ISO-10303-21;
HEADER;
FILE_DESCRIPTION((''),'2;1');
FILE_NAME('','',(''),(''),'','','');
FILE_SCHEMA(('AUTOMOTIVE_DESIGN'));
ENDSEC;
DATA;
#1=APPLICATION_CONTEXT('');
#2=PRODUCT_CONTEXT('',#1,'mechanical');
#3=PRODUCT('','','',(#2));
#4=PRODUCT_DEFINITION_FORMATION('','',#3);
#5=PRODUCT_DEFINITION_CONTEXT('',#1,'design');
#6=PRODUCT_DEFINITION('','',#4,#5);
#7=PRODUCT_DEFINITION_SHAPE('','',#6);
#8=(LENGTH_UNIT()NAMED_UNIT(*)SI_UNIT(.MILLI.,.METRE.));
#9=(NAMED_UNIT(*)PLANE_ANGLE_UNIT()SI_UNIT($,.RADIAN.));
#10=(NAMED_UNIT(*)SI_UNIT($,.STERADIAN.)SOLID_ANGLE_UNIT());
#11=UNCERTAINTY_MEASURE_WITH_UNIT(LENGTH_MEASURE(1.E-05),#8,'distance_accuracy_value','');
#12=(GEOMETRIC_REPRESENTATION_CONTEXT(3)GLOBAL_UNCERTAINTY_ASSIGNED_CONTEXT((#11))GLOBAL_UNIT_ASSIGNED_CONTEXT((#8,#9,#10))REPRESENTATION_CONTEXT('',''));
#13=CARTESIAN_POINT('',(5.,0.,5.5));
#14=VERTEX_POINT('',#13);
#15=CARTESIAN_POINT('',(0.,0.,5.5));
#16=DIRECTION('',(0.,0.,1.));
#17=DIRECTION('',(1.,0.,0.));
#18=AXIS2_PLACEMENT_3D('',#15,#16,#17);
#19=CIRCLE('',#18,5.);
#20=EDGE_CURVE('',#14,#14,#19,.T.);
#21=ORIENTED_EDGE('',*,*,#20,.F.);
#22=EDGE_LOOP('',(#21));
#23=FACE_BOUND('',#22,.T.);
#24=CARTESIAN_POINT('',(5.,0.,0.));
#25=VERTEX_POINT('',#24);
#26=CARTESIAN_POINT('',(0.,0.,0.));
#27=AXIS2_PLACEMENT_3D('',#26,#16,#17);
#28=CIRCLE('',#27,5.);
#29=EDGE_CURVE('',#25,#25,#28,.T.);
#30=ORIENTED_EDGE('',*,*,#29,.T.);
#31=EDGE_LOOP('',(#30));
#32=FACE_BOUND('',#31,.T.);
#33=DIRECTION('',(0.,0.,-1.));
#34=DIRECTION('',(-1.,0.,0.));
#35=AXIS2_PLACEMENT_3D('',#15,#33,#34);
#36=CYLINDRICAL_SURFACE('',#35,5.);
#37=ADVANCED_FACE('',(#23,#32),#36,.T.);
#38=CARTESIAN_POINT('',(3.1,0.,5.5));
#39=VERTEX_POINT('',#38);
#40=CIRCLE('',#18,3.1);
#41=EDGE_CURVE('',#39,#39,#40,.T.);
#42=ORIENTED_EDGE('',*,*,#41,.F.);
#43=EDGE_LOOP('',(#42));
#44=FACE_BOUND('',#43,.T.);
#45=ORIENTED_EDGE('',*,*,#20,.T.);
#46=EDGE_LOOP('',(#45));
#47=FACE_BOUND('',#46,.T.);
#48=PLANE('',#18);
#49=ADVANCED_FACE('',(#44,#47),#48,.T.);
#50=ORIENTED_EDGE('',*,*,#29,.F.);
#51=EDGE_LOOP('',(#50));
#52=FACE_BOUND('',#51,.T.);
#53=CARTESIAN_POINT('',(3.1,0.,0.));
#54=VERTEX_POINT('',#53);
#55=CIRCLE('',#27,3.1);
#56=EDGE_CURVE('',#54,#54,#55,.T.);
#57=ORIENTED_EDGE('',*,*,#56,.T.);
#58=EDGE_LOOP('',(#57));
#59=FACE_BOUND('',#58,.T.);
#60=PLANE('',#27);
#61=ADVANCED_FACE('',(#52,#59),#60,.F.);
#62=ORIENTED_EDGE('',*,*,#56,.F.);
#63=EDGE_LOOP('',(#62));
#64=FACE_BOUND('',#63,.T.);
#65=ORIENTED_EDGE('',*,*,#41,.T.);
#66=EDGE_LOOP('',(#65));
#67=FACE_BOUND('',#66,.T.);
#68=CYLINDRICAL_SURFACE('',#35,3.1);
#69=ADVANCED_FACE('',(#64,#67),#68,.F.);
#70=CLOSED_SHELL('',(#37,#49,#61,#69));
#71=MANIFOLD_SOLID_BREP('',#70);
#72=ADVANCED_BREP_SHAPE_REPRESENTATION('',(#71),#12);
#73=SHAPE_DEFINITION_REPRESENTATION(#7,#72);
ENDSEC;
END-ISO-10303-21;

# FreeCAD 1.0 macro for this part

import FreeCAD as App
import Part
import Sketcher

V = App.Vector
Q = App.Units.Quantity

doc = App.newDocument("Part")
body = doc.addObject("PartDesign::Body", "Body")

# Sketch on XY plane
sketch1 = body.newObject("Sketcher::SketchObject", "Sketch")
sketch1.AttachmentSupport = (doc.getObject("XY_Plane"), [""])
sketch1.MapMode = "FlatFace"
sketch1.addGeometry([
    Part.Circle(V(0, 0, 0), V(0, 0, 1), 5),
    Part.Circle(V(0, 0, 0), V(0, 0, 1), 3.1),
], False)
sketch1.addConstraint([
    Sketcher.Constraint("Coincident", 0, 3, -1, 1),
    Sketcher.Constraint("Coincident", 1, 3, -1, 1),
    Sketcher.Constraint("Diameter", 0, Q("10 mm")),
    Sketcher.Constraint("Diameter", 1, Q("6.2 mm")),
])
pad1 = body.newObject("PartDesign::Pad", "Pad")
pad1.Profile = sketch1
pad1.Length = 5.5

doc.recompute()
